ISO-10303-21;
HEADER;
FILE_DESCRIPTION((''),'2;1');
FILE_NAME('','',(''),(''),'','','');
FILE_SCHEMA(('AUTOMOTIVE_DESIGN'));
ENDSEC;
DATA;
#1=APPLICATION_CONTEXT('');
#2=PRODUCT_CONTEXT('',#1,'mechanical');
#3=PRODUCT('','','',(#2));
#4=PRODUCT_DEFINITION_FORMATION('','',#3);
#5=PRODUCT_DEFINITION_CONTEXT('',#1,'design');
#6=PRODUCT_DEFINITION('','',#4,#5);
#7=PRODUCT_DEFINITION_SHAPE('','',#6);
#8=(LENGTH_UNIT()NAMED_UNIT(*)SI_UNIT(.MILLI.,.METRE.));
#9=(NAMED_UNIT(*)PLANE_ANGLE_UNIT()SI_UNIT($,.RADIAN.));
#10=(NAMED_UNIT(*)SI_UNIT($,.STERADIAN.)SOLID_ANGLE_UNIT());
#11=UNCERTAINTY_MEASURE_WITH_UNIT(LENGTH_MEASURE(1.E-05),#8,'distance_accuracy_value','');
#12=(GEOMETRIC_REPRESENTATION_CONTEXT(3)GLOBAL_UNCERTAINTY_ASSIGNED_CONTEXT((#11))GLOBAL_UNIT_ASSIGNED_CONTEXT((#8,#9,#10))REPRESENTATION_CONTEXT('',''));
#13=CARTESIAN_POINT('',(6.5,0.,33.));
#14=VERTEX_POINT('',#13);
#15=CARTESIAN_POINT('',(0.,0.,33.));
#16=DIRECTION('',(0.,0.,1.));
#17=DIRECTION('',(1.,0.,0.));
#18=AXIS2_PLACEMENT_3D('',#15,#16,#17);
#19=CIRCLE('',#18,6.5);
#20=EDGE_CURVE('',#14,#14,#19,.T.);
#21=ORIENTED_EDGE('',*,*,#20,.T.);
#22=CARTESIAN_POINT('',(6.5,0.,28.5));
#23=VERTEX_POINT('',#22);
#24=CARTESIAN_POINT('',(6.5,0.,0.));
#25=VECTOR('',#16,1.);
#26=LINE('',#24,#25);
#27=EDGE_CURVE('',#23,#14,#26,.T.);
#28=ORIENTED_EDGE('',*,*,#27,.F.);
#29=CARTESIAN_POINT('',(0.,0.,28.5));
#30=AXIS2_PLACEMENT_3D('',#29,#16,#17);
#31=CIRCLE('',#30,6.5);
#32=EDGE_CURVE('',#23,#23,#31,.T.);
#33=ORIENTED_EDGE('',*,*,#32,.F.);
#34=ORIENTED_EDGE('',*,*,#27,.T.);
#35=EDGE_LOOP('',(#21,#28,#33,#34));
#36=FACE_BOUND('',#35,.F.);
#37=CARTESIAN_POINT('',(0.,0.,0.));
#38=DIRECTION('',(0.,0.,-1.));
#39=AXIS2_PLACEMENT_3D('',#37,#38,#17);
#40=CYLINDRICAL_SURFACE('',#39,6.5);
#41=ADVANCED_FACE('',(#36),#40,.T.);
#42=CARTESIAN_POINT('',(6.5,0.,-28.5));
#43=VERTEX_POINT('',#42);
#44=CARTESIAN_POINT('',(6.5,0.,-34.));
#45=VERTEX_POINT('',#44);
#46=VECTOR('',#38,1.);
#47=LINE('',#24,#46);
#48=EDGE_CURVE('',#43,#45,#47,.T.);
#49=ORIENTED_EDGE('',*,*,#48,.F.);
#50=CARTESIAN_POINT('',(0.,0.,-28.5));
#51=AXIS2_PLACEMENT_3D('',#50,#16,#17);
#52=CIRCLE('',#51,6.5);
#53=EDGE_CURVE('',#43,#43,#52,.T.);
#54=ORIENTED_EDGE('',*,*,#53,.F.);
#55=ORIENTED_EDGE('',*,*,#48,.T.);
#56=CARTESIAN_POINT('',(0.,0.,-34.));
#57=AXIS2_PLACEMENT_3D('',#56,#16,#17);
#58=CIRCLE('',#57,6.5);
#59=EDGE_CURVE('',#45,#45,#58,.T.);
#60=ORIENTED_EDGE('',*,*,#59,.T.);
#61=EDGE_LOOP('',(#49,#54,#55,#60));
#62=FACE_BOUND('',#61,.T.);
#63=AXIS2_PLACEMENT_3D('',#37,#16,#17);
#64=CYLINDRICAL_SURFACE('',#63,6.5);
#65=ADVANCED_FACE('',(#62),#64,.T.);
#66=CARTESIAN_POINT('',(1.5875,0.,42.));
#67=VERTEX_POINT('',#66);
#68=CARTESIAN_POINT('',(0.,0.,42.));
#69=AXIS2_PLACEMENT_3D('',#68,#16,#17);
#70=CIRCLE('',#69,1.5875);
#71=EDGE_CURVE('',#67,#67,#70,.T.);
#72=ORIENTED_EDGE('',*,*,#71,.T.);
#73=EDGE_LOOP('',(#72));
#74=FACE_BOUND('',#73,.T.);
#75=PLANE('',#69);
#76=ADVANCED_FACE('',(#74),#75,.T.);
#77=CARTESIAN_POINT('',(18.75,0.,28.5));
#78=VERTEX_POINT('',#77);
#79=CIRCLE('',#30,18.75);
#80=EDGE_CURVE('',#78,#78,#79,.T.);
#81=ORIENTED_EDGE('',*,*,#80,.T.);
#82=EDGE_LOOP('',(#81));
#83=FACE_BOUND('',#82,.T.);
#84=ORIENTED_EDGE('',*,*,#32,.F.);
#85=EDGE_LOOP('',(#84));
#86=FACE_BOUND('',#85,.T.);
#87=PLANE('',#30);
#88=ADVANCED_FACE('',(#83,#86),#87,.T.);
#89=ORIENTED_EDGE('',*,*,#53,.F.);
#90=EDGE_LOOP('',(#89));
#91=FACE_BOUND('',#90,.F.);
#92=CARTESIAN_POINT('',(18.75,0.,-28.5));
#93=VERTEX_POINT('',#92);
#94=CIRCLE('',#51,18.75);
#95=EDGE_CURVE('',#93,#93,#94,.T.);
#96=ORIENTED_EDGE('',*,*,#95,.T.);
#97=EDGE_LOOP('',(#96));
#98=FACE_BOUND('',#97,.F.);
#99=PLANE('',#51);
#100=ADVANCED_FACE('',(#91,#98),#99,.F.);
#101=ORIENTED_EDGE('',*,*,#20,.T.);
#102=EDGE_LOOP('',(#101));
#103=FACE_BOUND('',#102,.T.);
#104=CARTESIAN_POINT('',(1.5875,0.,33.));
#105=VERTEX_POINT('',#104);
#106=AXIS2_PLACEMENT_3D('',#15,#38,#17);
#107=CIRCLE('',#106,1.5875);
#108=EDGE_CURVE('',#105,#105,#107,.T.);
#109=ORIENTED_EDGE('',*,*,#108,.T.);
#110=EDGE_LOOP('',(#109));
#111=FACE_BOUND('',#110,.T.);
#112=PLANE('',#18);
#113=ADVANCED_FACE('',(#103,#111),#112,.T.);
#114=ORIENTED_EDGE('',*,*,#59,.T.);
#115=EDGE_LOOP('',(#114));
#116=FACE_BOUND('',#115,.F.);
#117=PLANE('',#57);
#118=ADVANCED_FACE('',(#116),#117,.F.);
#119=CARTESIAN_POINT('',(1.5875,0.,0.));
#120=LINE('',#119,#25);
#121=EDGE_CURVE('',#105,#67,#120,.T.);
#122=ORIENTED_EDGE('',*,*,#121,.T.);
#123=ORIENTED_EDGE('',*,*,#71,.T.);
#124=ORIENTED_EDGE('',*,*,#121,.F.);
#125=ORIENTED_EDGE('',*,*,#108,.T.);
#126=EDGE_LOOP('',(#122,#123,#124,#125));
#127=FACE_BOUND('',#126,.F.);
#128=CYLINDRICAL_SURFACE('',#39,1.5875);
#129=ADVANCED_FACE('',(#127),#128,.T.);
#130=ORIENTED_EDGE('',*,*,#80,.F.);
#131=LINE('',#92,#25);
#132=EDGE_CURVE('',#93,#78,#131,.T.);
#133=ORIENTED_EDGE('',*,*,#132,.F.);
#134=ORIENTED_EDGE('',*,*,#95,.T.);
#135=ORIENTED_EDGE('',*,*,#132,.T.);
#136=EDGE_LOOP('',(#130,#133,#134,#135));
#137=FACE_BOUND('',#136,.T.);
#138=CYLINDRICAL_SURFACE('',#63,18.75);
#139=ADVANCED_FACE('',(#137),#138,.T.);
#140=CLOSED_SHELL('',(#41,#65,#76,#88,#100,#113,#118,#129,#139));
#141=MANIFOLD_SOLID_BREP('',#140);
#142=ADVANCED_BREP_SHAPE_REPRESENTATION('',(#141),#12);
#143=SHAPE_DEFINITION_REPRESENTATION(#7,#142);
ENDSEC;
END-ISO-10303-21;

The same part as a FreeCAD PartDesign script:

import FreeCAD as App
import Part
import Sketcher
from FreeCAD import Vector

doc = App.newDocument("Part")
body = doc.addObject("PartDesign::Body", "Body")

sketch1 = doc.addObject("Sketcher::SketchObject", "Sketch")
body.addObject(sketch1)
sketch1.AttachmentSupport = (doc.XY_Plane, [""])
sketch1.MapMode = "FlatFace"
sketch1.addGeometry(Part.Circle(Vector(0, 0, 0), Vector(0, 0, 1), 6.5), False)
sketch1.addConstraint([
    Sketcher.Constraint("Coincident", 0, 3, -1, 1),
    Sketcher.Constraint("Diameter", 0, 13.0),
])
pad1 = doc.addObject("PartDesign::Pad", "Pad")
body.addObject(pad1)
pad1.Profile = sketch1
pad1.Length = 33

sketch2 = doc.addObject("Sketcher::SketchObject", "Sketch001")
body.addObject(sketch2)
sketch2.AttachmentSupport = (doc.XY_Plane, [""])
sketch2.MapMode = "FlatFace"
sketch2.addGeometry([
    Part.Circle(Vector(0, 0, 0), Vector(0, 0, 1), 18.75),
    Part.Circle(Vector(0, 0, 0), Vector(0, 0, 1), 6.5),
], False)
sketch2.addConstraint([
    Sketcher.Constraint("Coincident", 0, 3, -1, 1),
    Sketcher.Constraint("Coincident", 1, 3, -1, 1),
    Sketcher.Constraint("Diameter", 1, 13.0),
    Sketcher.Constraint("Diameter", 0, 37.5),
])
pad2 = doc.addObject("PartDesign::Pad", "Pad001")
body.addObject(pad2)
pad2.Profile = sketch2
pad2.Length = 57
pad2.Midplane = True

sketch3 = doc.addObject("Sketcher::SketchObject", "Sketch002")
body.addObject(sketch3)
sketch3.AttachmentSupport = (doc.XY_Plane, [""])
sketch3.MapMode = "FlatFace"
sketch3.addGeometry(Part.Circle(Vector(0, 0, 0), Vector(0, 0, 1), 6.5), False)
sketch3.addConstraint([
    Sketcher.Constraint("Coincident", 0, 3, -1, 1),
    Sketcher.Constraint("Diameter", 0, 13.0),
])
pad3 = doc.addObject("PartDesign::Pad", "Pad002")
body.addObject(pad3)
pad3.Profile = sketch3
pad3.Length = 34
pad3.Reversed = True

sketch4 = doc.addObject("Sketcher::SketchObject", "Sketch003")
body.addObject(sketch4)
sketch4.AttachmentSupport = (doc.XY_Plane, [""])
sketch4.MapMode = "FlatFace"
sketch4.addGeometry(Part.Circle(Vector(0, 0, 0), Vector(0, 0, 1), 1.5875), False)
sketch4.addConstraint([
    Sketcher.Constraint("Coincident", 0, 3, -1, 1),
    Sketcher.Constraint("Diameter", 0, 3.175),
])
pad4 = doc.addObject("PartDesign::Pad", "Pad003")
body.addObject(pad4)
pad4.Profile = sketch4
pad4.Length = 42

doc.recompute()
